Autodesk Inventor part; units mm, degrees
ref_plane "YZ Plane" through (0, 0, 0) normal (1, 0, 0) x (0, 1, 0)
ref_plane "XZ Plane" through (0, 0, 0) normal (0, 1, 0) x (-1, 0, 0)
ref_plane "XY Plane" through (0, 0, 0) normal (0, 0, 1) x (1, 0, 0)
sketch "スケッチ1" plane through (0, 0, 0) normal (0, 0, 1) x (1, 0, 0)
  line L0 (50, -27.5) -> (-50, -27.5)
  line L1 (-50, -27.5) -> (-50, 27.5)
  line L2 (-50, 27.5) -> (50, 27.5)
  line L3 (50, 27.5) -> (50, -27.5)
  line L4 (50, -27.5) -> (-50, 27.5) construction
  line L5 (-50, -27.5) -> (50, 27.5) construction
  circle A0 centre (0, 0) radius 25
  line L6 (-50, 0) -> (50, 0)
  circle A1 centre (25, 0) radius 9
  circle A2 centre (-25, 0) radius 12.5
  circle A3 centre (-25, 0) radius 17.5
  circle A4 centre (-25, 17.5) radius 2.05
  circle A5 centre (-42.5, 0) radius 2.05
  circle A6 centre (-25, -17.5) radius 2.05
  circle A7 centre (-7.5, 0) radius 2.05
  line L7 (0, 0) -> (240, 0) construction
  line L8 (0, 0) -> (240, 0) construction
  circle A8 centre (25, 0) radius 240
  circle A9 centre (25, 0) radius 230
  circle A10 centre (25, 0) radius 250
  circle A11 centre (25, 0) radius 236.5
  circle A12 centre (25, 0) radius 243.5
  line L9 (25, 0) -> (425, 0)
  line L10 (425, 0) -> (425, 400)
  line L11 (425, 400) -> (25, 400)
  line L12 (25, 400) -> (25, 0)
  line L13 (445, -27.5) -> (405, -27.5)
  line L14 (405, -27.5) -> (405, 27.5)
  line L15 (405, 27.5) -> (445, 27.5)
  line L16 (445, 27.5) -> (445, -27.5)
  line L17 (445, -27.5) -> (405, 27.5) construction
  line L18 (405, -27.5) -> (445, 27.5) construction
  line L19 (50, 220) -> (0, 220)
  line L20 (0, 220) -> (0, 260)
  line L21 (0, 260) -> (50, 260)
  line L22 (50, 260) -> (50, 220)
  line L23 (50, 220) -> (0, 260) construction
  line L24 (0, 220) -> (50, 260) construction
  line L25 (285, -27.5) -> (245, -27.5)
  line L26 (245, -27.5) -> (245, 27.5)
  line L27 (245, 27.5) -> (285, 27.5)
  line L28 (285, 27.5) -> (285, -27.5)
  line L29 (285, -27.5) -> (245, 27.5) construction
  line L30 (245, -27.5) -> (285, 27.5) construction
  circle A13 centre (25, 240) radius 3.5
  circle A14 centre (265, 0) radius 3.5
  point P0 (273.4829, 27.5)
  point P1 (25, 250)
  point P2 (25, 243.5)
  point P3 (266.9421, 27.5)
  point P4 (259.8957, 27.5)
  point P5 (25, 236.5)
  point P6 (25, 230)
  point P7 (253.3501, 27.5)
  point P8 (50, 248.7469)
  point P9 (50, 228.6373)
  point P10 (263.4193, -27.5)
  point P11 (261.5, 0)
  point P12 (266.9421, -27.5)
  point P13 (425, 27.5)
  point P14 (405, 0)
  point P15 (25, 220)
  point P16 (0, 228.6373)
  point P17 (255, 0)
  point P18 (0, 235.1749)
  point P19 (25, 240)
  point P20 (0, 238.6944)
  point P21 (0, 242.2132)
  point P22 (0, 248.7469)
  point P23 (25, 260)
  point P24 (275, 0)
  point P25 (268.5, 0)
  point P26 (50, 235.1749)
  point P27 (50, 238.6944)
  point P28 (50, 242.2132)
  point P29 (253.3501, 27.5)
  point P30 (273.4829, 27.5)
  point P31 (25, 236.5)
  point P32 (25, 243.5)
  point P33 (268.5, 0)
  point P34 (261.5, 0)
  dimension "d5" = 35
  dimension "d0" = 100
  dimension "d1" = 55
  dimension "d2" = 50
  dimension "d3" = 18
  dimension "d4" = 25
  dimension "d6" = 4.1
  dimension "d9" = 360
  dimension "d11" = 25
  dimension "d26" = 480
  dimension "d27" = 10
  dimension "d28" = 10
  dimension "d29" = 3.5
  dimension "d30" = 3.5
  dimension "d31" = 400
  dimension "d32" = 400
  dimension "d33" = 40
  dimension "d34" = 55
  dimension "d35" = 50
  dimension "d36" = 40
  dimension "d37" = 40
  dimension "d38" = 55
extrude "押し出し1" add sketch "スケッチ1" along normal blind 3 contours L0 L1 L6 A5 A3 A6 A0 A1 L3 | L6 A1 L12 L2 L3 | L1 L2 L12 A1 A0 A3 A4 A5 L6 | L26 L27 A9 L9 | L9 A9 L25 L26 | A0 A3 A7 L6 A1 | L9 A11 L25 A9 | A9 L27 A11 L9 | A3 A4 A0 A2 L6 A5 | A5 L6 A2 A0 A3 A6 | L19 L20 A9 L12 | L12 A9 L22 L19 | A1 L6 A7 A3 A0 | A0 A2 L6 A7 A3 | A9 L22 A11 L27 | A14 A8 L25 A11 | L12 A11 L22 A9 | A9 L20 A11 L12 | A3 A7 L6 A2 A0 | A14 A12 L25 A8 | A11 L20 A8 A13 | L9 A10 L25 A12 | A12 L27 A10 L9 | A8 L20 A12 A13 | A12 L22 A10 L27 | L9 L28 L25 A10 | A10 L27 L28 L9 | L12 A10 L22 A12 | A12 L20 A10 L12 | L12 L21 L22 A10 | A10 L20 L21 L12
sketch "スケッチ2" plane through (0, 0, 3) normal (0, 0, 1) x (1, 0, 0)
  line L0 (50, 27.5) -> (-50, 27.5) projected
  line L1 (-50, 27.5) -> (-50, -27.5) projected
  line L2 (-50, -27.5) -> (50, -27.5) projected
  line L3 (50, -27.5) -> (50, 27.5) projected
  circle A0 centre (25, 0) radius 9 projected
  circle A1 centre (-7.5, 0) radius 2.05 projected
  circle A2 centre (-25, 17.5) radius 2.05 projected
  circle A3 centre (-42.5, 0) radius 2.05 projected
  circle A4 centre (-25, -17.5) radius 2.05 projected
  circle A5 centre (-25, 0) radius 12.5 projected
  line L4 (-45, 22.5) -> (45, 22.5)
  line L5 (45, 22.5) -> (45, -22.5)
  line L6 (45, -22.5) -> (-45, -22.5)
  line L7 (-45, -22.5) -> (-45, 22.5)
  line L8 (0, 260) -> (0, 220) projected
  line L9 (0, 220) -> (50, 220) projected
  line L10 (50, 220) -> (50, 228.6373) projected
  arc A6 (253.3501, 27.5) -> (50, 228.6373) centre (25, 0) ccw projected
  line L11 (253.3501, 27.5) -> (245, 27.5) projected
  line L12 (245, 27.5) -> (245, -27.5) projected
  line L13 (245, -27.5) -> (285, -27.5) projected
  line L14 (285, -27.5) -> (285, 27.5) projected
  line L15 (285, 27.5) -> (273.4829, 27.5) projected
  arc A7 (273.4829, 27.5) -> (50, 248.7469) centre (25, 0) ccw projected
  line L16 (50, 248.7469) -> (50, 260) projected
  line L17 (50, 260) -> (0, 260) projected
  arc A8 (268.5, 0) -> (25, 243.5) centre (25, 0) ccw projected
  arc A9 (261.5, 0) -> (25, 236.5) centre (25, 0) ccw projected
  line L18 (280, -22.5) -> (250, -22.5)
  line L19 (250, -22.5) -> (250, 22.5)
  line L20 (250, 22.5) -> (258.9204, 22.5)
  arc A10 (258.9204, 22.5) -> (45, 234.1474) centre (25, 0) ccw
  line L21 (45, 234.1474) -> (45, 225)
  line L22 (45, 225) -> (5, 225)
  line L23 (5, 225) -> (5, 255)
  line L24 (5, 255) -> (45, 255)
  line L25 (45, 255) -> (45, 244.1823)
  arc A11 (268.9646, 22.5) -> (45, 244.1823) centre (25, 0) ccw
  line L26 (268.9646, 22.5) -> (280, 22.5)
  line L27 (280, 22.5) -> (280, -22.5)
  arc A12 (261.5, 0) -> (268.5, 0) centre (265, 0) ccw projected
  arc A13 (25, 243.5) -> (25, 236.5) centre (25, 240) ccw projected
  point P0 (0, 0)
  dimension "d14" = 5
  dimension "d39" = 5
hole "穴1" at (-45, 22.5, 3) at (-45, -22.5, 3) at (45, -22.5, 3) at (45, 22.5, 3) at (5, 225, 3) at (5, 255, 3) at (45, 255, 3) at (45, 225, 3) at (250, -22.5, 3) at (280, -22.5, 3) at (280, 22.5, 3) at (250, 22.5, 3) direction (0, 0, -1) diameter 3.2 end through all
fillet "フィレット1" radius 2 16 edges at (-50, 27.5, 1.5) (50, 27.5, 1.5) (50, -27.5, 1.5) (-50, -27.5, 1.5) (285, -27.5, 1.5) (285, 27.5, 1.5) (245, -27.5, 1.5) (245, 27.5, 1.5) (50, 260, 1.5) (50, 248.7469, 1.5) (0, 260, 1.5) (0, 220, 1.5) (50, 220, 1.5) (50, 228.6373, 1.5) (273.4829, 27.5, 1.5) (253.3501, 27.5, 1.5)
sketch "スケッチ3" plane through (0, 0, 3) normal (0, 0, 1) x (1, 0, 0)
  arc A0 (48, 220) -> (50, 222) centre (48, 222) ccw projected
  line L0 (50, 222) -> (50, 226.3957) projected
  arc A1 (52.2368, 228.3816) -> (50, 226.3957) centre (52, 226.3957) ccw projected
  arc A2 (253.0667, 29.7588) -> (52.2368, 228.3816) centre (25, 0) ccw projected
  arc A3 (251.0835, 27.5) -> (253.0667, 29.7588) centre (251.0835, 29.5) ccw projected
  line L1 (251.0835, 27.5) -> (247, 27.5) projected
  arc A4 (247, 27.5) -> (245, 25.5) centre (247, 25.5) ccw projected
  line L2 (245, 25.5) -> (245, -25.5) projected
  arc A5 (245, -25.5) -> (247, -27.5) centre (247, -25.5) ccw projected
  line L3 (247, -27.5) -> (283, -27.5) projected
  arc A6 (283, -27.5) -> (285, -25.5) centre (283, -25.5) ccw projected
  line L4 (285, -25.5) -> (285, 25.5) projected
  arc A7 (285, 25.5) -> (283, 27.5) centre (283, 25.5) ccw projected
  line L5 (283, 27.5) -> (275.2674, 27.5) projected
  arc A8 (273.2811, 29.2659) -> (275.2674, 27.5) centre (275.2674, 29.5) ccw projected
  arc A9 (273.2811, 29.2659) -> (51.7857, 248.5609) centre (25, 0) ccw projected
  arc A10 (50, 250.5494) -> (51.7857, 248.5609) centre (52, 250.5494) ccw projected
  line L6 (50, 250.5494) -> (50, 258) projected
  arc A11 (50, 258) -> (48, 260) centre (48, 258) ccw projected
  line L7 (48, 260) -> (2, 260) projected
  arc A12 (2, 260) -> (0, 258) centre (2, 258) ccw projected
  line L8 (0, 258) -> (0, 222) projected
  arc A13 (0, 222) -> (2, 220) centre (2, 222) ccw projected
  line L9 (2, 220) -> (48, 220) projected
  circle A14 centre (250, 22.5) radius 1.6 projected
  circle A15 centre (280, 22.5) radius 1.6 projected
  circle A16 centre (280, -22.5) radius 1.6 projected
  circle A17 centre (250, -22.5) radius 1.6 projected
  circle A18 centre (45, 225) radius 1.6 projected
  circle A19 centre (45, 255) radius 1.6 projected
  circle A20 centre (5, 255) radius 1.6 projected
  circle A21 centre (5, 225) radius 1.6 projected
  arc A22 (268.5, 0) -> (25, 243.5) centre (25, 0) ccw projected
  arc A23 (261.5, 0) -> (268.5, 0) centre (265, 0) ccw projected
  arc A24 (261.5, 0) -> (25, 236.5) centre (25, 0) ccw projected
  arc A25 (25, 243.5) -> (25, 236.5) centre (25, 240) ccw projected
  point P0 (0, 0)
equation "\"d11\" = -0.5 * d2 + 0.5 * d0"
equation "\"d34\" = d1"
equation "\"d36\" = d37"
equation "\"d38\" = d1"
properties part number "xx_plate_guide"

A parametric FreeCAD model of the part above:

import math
import FreeCAD as App
import Part
import Sketcher
from FreeCAD import Vector


def edges_at(feature, points):
    """Names of the edges that pass closest to the given points."""
    edges = feature.Shape.Edges
    near = lambda p: min(range(len(edges)), key=lambda i: edges[i].distToShape(Part.Vertex(*p))[0])
    return sorted({f"Edge{near(p) + 1}" for p in points})


def add_polygon(sketch, points):
    """Adds a closed chain of lines whose ends are joined by coincident constraints."""
    first, n = sketch.GeometryCount, len(points)
    for a, b in zip(points, points[1:] + points[:1]):
        sketch.addGeometry(Part.LineSegment(App.Vector(*a, 0), App.Vector(*b, 0)), False)
    for i in range(n):
        sketch.addConstraint(Sketcher.Constraint("Coincident", first + i, 2, first + (i + 1) % n, 1))

doc = App.newDocument("Part")
params = doc.addObject("Spreadsheet::Sheet", "Params")
for row, (alias, value) in enumerate([
    ("sketch1_diameter", "18 mm"),
    ("sketch1_diameter2", "25 mm"),
    ("sketch1_diameter3", "4.1 mm"),
    ("sketch1_radius", "3.5 mm"),
    ("sketch1_width", "100 mm"),
    ("pad1_length", "3 mm"),
    ("sketch2_diameter", "3.2 mm"),
    ("hole_diameter", "3.2 mm"),
    ("fillet_radius", "2 mm"),
], start=1):
    params.set(f"A{row}", alias)
    params.set(f"B{row}", "=" + value)
    params.setAlias(f"B{row}", alias)

body = doc.addObject("PartDesign::Body", "Body")
body.AllowCompound = True

sketch1 = body.newObject("Sketcher::SketchObject", "Sketch")
sketch1.AttachmentSupport = (doc.getObject("XY_Plane"), [""])
sketch1.MapMode = "FlatFace"
add_polygon(sketch1, [(-50, -27.5), (50, -27.5), (50, 27.5), (-50, 27.5)])
sketch1.addGeometry(Part.Circle(Vector(-42.5, 0, 0), Vector(0, 0, 1), 2.05), False)
sketch1.addGeometry(Part.Circle(Vector(-25, -17.5, 0), Vector(0, 0, 1), 2.05), False)
sketch1.addGeometry(Part.Circle(Vector(25, 0, 0), Vector(0, 0, 1), 9), False)
sketch1.addGeometry(Part.Circle(Vector(-25, 17.5, 0), Vector(0, 0, 1), 2.05), False)
sketch1.addGeometry(Part.Circle(Vector(-25, 0, 0), Vector(0, 0, 1), 12.5), False)
sketch1.addGeometry(Part.Circle(Vector(-7.5, 0, 0), Vector(0, 0, 1), 2.05), False)
sketch1.addGeometry(Part.LineSegment(Vector(245, 27.5, 0), Vector(245, -27.5, 0)), False)
sketch1.addGeometry(Part.LineSegment(Vector(245, -27.5, 0), Vector(285, -27.5, 0)), False)
sketch1.addGeometry(Part.LineSegment(Vector(285, -27.5, 0), Vector(285, 27.5, 0)), False)
sketch1.addGeometry(Part.LineSegment(Vector(285, 27.5, 0), Vector(273.482897, 27.5, 0)), False)
sketch1.addGeometry(Part.ArcOfCircle(Part.Circle(Vector(25, 0, 0), Vector(0, 0, 1), 250), math.radians(6.315316), math.radians(84.26083)), False)
sketch1.addGeometry(Part.LineSegment(Vector(50, 248.746859, 0), Vector(50, 260, 0)), False)
sketch1.addGeometry(Part.LineSegment(Vector(50, 260, 0), Vector(0, 260, 0)), False)
sketch1.addGeometry(Part.LineSegment(Vector(0, 260, 0), Vector(0, 220, 0)), False)
sketch1.addGeometry(Part.LineSegment(Vector(0, 220, 0), Vector(50, 220, 0)), False)
sketch1.addGeometry(Part.LineSegment(Vector(50, 220, 0), Vector(50, 228.637267, 0)), False)
sketch1.addGeometry(Part.ArcOfCircle(Part.Circle(Vector(25, 0, 0), Vector(0, 0, 1), 230), math.radians(6.867011), math.radians(83.759869)), False)
sketch1.addGeometry(Part.LineSegment(Vector(253.35006, 27.5, 0), Vector(245, 27.5, 0)), False)
sketch1.addGeometry(Part.ArcOfCircle(Part.Circle(Vector(25, 0, 0), Vector(0, 0, 1), 236.5), math.radians(0), math.radians(90)), False)
sketch1.addGeometry(Part.ArcOfCircle(Part.Circle(Vector(25, 240, 0), Vector(0, 0, 1), 3.5), math.radians(90), math.radians(270)), False)
sketch1.addGeometry(Part.ArcOfCircle(Part.Circle(Vector(25, 0, 0), Vector(0, 0, 1), 243.5), math.radians(0), math.radians(90)), False)
sketch1.addGeometry(Part.ArcOfCircle(Part.Circle(Vector(265, 0, 0), Vector(0, 0, 1), 3.5), math.radians(180), math.radians(360)), False)
sketch1.addConstraint(Sketcher.Constraint("Coincident", 10, 2, 11, 1))
sketch1.addConstraint(Sketcher.Constraint("Coincident", 11, 2, 12, 1))
sketch1.addConstraint(Sketcher.Constraint("Coincident", 12, 2, 13, 1))
sketch1.addConstraint(Sketcher.Constraint("Coincident", 13, 2, 14, 1))
sketch1.addConstraint(Sketcher.Constraint("Coincident", 14, 2, 15, 1))
sketch1.addConstraint(Sketcher.Constraint("Coincident", 15, 2, 16, 1))
sketch1.addConstraint(Sketcher.Constraint("Coincident", 16, 2, 17, 1))
sketch1.addConstraint(Sketcher.Constraint("Coincident", 17, 2, 18, 1))
sketch1.addConstraint(Sketcher.Constraint("Coincident", 18, 2, 19, 1))
sketch1.addConstraint(Sketcher.Constraint("Coincident", 19, 2, 20, 2))
sketch1.addConstraint(Sketcher.Constraint("Coincident", 20, 1, 21, 1))
sketch1.addConstraint(Sketcher.Constraint("Coincident", 21, 2, 10, 1))
sketch1.addConstraint(Sketcher.Constraint("Tangent", 22, 2, 23, 2))
sketch1.addConstraint(Sketcher.Constraint("Tangent", 23, 1, 24, 2))
sketch1.addConstraint(Sketcher.Constraint("Tangent", 24, 1, 25, 2))
sketch1.addConstraint(Sketcher.Constraint("Tangent", 25, 1, 22, 1))
sketch1.addConstraint(Sketcher.Constraint("Horizontal", 0))
sketch1.addConstraint(Sketcher.Constraint("Vertical", 1))
sketch1.addConstraint(Sketcher.Constraint("Horizontal", 2))
sketch1.addConstraint(Sketcher.Constraint("Vertical", 3))
sketch1.addConstraint(Sketcher.Constraint("Vertical", 10))
sketch1.addConstraint(Sketcher.Constraint("Horizontal", 11))
sketch1.addConstraint(Sketcher.Constraint("Vertical", 12))
sketch1.addConstraint(Sketcher.Constraint("Horizontal", 13))
sketch1.addConstraint(Sketcher.Constraint("Vertical", 15))
sketch1.addConstraint(Sketcher.Constraint("Horizontal", 16))
sketch1.addConstraint(Sketcher.Constraint("Vertical", 17))
sketch1.addConstraint(Sketcher.Constraint("Horizontal", 18))
sketch1.addConstraint(Sketcher.Constraint("Vertical", 19))
sketch1.addConstraint(Sketcher.Constraint("Horizontal", 21))
sketch1.addConstraint(Sketcher.Constraint("Coincident", 14, 3, 6, 3))
sketch1.addConstraint(Sketcher.Constraint("Coincident", 20, 3, 6, 3))
sketch1.addConstraint(Sketcher.Constraint("Coincident", 22, 3, 6, 3))
sketch1.addConstraint(Sketcher.Constraint("Coincident", 24, 3, 6, 3))
sketch1.addConstraint(Sketcher.Constraint("Equal", 4, 5))
sketch1.addConstraint(Sketcher.Constraint("Equal", 5, 7))
sketch1.addConstraint(Sketcher.Constraint("Equal", 7, 9))
sketch1.addConstraint(Sketcher.Constraint("Symmetric", 6, 3, 8, 3, -1, 1))
sketch1.addConstraint(Sketcher.Constraint("Symmetric", 0, 2, 2, 2, -1, 1))
sketch1.addConstraint(Sketcher.Constraint("Symmetric", 5, 3, 7, 3, -1))
sketch1.addConstraint(Sketcher.Constraint("PointOnObject", 4, 3, -1))
sketch1.addConstraint(Sketcher.Constraint("PointOnObject", 6, 3, -1))
sketch1.addConstraint(Sketcher.Constraint("PointOnObject", 9, 3, -1))
sketch1.addConstraint(Sketcher.Constraint("PointOnObject", 25, 3, -1))
sketch1.addConstraint(Sketcher.Constraint("PointOnObject", 16, 2, -2))
sketch1.addConstraint(Sketcher.Constraint("Horizontal", 3, 2, 10, 2))
sketch1.addConstraint(Sketcher.Constraint("Horizontal", 2, 2, 12, 2))
sketch1.addConstraint(Sketcher.Constraint("Horizontal", 13, 2, 20, 1))
sketch1.addConstraint(Sketcher.Constraint("Vertical", 7, 3, 8, 3))
sketch1.addConstraint(Sketcher.Constraint("Vertical", 22, 3, 23, 3))
sketch1.addConstraint(Sketcher.Constraint("Vertical", 1, 2, 14, 2))
sketch1.addConstraint(Sketcher.Constraint("Vertical", 15, 2, 18, 2))
sketch1.addConstraint(Sketcher.Constraint("Equal", 11, 17))
sketch1.addConstraint(Sketcher.Constraint("Diameter", 6, 18.0))
sketch1.addConstraint(Sketcher.Constraint("Diameter", 8, 25.0))
sketch1.addConstraint(Sketcher.Constraint("Diameter", 4, 4.1))
sketch1.addConstraint(Sketcher.Constraint("Radius", 23, 3.5))
sketch1.addConstraint(Sketcher.Constraint("DistanceX", 0, 1, 0, 2, 100.0))
sketch1.addConstraint(Sketcher.Constraint("DistanceX", 11, 1, 11, 2, 40.0))
sketch1.addConstraint(Sketcher.Constraint("DistanceY", 1, 1, 1, 2, 55.0))
sketch1.addConstraint(Sketcher.Constraint("DistanceX", 5, 3, -1, 1, 25.0))
sketch1.addConstraint(Sketcher.Constraint("Radius", 14, 250.0))
sketch1.addConstraint(Sketcher.Constraint("Radius", 20, 230.0))
sketch1.addConstraint(Sketcher.Constraint("DistanceY", 5, 3, 7, 3, 35.0))
sketch1.addConstraint(Sketcher.Constraint("DistanceX", 4, 3, 9, 3, 35.0))
sketch1.addConstraint(Sketcher.Constraint("Radius", 22, 236.5))
sketch1.addConstraint(Sketcher.Constraint("DistanceX", -1, 1, 10, 2, 245.0))
sketch1.addConstraint(Sketcher.Constraint("DistanceY", -1, 1, 15, 2, 260.0))
sketch1.addConstraint(Sketcher.Constraint("DistanceX", 4, 3, -1, 1, 42.5))
sketch1.setExpression("Constraints[57]", "Params.sketch1_diameter")
sketch1.setExpression("Constraints[58]", "Params.sketch1_diameter2")
sketch1.setExpression("Constraints[59]", "Params.sketch1_diameter3")
sketch1.setExpression("Constraints[60]", "Params.sketch1_radius")
sketch1.setExpression("Constraints[61]", "Params.sketch1_width")
pad1 = body.newObject("PartDesign::Pad", "Pad")
pad1.Profile = sketch1
pad1.setExpression("Length", "Params.pad1_length")

sketch2 = body.newObject("Sketcher::SketchObject", "Sketch001")
sketch2.AttachmentSupport = (doc.getObject("XY_Plane"), [""])
sketch2.MapMode = "FlatFace"
sketch2.AttachmentOffset = App.Placement(Vector(0, 0, 3), App.Rotation())
sketch2.addGeometry(Part.Circle(Vector(-45, 22.5, 0), Vector(0, 0, 1), 1.6), False)
sketch2.addGeometry(Part.Circle(Vector(-45, -22.5, 0), Vector(0, 0, 1), 1.6), False)
sketch2.addGeometry(Part.Circle(Vector(45, -22.5, 0), Vector(0, 0, 1), 1.6), False)
sketch2.addGeometry(Part.Circle(Vector(45, 22.5, 0), Vector(0, 0, 1), 1.6), False)
sketch2.addGeometry(Part.Circle(Vector(5, 225, 0), Vector(0, 0, 1), 1.6), False)
sketch2.addGeometry(Part.Circle(Vector(5, 255, 0), Vector(0, 0, 1), 1.6), False)
sketch2.addGeometry(Part.Circle(Vector(45, 255, 0), Vector(0, 0, 1), 1.6), False)
sketch2.addGeometry(Part.Circle(Vector(45, 225, 0), Vector(0, 0, 1), 1.6), False)
sketch2.addGeometry(Part.Circle(Vector(250, -22.5, 0), Vector(0, 0, 1), 1.6), False)
sketch2.addGeometry(Part.Circle(Vector(280, -22.5, 0), Vector(0, 0, 1), 1.6), False)
sketch2.addGeometry(Part.Circle(Vector(280, 22.5, 0), Vector(0, 0, 1), 1.6), False)
sketch2.addGeometry(Part.Circle(Vector(250, 22.5, 0), Vector(0, 0, 1), 1.6), False)
sketch2.addConstraint(Sketcher.Constraint("Equal", 0, 1))
sketch2.addConstraint(Sketcher.Constraint("Equal", 1, 2))
sketch2.addConstraint(Sketcher.Constraint("Equal", 2, 3))
sketch2.addConstraint(Sketcher.Constraint("Equal", 3, 4))
sketch2.addConstraint(Sketcher.Constraint("Equal", 4, 5))
sketch2.addConstraint(Sketcher.Constraint("Equal", 5, 6))
sketch2.addConstraint(Sketcher.Constraint("Equal", 6, 7))
sketch2.addConstraint(Sketcher.Constraint("Equal", 7, 8))
sketch2.addConstraint(Sketcher.Constraint("Equal", 8, 9))
sketch2.addConstraint(Sketcher.Constraint("Equal", 9, 10))
sketch2.addConstraint(Sketcher.Constraint("Equal", 10, 11))
sketch2.addConstraint(Sketcher.Constraint("Symmetric", 0, 3, 2, 3, -1, 1))
sketch2.addConstraint(Sketcher.Constraint("Symmetric", 1, 3, 3, 3, -1, 1))
sketch2.addConstraint(Sketcher.Constraint("Symmetric", 1, 3, 2, 3, -2))
sketch2.addConstraint(Sketcher.Constraint("Symmetric", 9, 3, 10, 3, -1))
sketch2.addConstraint(Sketcher.Constraint("Symmetric", 8, 3, 11, 3, -1))
sketch2.addConstraint(Sketcher.Constraint("Horizontal", 5, 3, 6, 3))
sketch2.addConstraint(Sketcher.Constraint("Horizontal", 4, 3, 7, 3))
sketch2.addConstraint(Sketcher.Constraint("Horizontal", 2, 3, 8, 3))
sketch2.addConstraint(Sketcher.Constraint("Horizontal", 8, 3, 9, 3))
sketch2.addConstraint(Sketcher.Constraint("Vertical", 4, 3, 5, 3))
sketch2.addConstraint(Sketcher.Constraint("Vertical", 3, 3, 6, 3))
sketch2.addConstraint(Sketcher.Constraint("Vertical", 6, 3, 7, 3))
sketch2.addConstraint(Sketcher.Constraint("Diameter", 0, 3.2))
sketch2.addConstraint(Sketcher.Constraint("DistanceX", 0, 3, -1, 1, 45.0))
sketch2.addConstraint(Sketcher.Constraint("DistanceX", -1, 1, 4, 3, 5.0))
sketch2.addConstraint(Sketcher.Constraint("DistanceY", -1, 1, 4, 3, 225.0))
sketch2.addConstraint(Sketcher.Constraint("DistanceY", -1, 1, 5, 3, 255.0))
sketch2.addConstraint(Sketcher.Constraint("DistanceX", -1, 1, 8, 3, 250.0))
sketch2.addConstraint(Sketcher.Constraint("DistanceX", -1, 1, 9, 3, 280.0))
sketch2.addConstraint(Sketcher.Constraint("DistanceY", 1, 3, 0, 3, 45.0))
sketch2.setExpression("Constraints[23]", "Params.sketch2_diameter")
doc.recompute()
hole = body.newObject("PartDesign::Hole", "Hole")
hole.Profile = sketch2
hole.ThreadType = "None"
hole.setExpression("Diameter", "Params.hole_diameter")
hole.DepthType = "ThroughAll"
doc.recompute()

fillet = body.newObject("PartDesign::Fillet", "Fillet")
fillet.Base = (hole, edges_at(hole, [
    (-50, 27.5, 1.5),
    (50, 27.5, 1.5),
    (50, -27.5, 1.5),
    (-50, -27.5, 1.5),
    (285, -27.5, 1.5),
    (285, 27.5, 1.5),
    (245, -27.5, 1.5),
    (245, 27.5, 1.5),
    (50, 260, 1.5),
    (50, 248.747, 1.5),
    (0, 260, 1.5),
    (0, 220, 1.5),
    (50, 220, 1.5),
    (50, 228.637, 1.5),
    (273.483, 27.5, 1.5),
    (253.35, 27.5, 1.5),
]))
fillet.setExpression("Radius", "Params.fillet_radius")

doc.recompute()
